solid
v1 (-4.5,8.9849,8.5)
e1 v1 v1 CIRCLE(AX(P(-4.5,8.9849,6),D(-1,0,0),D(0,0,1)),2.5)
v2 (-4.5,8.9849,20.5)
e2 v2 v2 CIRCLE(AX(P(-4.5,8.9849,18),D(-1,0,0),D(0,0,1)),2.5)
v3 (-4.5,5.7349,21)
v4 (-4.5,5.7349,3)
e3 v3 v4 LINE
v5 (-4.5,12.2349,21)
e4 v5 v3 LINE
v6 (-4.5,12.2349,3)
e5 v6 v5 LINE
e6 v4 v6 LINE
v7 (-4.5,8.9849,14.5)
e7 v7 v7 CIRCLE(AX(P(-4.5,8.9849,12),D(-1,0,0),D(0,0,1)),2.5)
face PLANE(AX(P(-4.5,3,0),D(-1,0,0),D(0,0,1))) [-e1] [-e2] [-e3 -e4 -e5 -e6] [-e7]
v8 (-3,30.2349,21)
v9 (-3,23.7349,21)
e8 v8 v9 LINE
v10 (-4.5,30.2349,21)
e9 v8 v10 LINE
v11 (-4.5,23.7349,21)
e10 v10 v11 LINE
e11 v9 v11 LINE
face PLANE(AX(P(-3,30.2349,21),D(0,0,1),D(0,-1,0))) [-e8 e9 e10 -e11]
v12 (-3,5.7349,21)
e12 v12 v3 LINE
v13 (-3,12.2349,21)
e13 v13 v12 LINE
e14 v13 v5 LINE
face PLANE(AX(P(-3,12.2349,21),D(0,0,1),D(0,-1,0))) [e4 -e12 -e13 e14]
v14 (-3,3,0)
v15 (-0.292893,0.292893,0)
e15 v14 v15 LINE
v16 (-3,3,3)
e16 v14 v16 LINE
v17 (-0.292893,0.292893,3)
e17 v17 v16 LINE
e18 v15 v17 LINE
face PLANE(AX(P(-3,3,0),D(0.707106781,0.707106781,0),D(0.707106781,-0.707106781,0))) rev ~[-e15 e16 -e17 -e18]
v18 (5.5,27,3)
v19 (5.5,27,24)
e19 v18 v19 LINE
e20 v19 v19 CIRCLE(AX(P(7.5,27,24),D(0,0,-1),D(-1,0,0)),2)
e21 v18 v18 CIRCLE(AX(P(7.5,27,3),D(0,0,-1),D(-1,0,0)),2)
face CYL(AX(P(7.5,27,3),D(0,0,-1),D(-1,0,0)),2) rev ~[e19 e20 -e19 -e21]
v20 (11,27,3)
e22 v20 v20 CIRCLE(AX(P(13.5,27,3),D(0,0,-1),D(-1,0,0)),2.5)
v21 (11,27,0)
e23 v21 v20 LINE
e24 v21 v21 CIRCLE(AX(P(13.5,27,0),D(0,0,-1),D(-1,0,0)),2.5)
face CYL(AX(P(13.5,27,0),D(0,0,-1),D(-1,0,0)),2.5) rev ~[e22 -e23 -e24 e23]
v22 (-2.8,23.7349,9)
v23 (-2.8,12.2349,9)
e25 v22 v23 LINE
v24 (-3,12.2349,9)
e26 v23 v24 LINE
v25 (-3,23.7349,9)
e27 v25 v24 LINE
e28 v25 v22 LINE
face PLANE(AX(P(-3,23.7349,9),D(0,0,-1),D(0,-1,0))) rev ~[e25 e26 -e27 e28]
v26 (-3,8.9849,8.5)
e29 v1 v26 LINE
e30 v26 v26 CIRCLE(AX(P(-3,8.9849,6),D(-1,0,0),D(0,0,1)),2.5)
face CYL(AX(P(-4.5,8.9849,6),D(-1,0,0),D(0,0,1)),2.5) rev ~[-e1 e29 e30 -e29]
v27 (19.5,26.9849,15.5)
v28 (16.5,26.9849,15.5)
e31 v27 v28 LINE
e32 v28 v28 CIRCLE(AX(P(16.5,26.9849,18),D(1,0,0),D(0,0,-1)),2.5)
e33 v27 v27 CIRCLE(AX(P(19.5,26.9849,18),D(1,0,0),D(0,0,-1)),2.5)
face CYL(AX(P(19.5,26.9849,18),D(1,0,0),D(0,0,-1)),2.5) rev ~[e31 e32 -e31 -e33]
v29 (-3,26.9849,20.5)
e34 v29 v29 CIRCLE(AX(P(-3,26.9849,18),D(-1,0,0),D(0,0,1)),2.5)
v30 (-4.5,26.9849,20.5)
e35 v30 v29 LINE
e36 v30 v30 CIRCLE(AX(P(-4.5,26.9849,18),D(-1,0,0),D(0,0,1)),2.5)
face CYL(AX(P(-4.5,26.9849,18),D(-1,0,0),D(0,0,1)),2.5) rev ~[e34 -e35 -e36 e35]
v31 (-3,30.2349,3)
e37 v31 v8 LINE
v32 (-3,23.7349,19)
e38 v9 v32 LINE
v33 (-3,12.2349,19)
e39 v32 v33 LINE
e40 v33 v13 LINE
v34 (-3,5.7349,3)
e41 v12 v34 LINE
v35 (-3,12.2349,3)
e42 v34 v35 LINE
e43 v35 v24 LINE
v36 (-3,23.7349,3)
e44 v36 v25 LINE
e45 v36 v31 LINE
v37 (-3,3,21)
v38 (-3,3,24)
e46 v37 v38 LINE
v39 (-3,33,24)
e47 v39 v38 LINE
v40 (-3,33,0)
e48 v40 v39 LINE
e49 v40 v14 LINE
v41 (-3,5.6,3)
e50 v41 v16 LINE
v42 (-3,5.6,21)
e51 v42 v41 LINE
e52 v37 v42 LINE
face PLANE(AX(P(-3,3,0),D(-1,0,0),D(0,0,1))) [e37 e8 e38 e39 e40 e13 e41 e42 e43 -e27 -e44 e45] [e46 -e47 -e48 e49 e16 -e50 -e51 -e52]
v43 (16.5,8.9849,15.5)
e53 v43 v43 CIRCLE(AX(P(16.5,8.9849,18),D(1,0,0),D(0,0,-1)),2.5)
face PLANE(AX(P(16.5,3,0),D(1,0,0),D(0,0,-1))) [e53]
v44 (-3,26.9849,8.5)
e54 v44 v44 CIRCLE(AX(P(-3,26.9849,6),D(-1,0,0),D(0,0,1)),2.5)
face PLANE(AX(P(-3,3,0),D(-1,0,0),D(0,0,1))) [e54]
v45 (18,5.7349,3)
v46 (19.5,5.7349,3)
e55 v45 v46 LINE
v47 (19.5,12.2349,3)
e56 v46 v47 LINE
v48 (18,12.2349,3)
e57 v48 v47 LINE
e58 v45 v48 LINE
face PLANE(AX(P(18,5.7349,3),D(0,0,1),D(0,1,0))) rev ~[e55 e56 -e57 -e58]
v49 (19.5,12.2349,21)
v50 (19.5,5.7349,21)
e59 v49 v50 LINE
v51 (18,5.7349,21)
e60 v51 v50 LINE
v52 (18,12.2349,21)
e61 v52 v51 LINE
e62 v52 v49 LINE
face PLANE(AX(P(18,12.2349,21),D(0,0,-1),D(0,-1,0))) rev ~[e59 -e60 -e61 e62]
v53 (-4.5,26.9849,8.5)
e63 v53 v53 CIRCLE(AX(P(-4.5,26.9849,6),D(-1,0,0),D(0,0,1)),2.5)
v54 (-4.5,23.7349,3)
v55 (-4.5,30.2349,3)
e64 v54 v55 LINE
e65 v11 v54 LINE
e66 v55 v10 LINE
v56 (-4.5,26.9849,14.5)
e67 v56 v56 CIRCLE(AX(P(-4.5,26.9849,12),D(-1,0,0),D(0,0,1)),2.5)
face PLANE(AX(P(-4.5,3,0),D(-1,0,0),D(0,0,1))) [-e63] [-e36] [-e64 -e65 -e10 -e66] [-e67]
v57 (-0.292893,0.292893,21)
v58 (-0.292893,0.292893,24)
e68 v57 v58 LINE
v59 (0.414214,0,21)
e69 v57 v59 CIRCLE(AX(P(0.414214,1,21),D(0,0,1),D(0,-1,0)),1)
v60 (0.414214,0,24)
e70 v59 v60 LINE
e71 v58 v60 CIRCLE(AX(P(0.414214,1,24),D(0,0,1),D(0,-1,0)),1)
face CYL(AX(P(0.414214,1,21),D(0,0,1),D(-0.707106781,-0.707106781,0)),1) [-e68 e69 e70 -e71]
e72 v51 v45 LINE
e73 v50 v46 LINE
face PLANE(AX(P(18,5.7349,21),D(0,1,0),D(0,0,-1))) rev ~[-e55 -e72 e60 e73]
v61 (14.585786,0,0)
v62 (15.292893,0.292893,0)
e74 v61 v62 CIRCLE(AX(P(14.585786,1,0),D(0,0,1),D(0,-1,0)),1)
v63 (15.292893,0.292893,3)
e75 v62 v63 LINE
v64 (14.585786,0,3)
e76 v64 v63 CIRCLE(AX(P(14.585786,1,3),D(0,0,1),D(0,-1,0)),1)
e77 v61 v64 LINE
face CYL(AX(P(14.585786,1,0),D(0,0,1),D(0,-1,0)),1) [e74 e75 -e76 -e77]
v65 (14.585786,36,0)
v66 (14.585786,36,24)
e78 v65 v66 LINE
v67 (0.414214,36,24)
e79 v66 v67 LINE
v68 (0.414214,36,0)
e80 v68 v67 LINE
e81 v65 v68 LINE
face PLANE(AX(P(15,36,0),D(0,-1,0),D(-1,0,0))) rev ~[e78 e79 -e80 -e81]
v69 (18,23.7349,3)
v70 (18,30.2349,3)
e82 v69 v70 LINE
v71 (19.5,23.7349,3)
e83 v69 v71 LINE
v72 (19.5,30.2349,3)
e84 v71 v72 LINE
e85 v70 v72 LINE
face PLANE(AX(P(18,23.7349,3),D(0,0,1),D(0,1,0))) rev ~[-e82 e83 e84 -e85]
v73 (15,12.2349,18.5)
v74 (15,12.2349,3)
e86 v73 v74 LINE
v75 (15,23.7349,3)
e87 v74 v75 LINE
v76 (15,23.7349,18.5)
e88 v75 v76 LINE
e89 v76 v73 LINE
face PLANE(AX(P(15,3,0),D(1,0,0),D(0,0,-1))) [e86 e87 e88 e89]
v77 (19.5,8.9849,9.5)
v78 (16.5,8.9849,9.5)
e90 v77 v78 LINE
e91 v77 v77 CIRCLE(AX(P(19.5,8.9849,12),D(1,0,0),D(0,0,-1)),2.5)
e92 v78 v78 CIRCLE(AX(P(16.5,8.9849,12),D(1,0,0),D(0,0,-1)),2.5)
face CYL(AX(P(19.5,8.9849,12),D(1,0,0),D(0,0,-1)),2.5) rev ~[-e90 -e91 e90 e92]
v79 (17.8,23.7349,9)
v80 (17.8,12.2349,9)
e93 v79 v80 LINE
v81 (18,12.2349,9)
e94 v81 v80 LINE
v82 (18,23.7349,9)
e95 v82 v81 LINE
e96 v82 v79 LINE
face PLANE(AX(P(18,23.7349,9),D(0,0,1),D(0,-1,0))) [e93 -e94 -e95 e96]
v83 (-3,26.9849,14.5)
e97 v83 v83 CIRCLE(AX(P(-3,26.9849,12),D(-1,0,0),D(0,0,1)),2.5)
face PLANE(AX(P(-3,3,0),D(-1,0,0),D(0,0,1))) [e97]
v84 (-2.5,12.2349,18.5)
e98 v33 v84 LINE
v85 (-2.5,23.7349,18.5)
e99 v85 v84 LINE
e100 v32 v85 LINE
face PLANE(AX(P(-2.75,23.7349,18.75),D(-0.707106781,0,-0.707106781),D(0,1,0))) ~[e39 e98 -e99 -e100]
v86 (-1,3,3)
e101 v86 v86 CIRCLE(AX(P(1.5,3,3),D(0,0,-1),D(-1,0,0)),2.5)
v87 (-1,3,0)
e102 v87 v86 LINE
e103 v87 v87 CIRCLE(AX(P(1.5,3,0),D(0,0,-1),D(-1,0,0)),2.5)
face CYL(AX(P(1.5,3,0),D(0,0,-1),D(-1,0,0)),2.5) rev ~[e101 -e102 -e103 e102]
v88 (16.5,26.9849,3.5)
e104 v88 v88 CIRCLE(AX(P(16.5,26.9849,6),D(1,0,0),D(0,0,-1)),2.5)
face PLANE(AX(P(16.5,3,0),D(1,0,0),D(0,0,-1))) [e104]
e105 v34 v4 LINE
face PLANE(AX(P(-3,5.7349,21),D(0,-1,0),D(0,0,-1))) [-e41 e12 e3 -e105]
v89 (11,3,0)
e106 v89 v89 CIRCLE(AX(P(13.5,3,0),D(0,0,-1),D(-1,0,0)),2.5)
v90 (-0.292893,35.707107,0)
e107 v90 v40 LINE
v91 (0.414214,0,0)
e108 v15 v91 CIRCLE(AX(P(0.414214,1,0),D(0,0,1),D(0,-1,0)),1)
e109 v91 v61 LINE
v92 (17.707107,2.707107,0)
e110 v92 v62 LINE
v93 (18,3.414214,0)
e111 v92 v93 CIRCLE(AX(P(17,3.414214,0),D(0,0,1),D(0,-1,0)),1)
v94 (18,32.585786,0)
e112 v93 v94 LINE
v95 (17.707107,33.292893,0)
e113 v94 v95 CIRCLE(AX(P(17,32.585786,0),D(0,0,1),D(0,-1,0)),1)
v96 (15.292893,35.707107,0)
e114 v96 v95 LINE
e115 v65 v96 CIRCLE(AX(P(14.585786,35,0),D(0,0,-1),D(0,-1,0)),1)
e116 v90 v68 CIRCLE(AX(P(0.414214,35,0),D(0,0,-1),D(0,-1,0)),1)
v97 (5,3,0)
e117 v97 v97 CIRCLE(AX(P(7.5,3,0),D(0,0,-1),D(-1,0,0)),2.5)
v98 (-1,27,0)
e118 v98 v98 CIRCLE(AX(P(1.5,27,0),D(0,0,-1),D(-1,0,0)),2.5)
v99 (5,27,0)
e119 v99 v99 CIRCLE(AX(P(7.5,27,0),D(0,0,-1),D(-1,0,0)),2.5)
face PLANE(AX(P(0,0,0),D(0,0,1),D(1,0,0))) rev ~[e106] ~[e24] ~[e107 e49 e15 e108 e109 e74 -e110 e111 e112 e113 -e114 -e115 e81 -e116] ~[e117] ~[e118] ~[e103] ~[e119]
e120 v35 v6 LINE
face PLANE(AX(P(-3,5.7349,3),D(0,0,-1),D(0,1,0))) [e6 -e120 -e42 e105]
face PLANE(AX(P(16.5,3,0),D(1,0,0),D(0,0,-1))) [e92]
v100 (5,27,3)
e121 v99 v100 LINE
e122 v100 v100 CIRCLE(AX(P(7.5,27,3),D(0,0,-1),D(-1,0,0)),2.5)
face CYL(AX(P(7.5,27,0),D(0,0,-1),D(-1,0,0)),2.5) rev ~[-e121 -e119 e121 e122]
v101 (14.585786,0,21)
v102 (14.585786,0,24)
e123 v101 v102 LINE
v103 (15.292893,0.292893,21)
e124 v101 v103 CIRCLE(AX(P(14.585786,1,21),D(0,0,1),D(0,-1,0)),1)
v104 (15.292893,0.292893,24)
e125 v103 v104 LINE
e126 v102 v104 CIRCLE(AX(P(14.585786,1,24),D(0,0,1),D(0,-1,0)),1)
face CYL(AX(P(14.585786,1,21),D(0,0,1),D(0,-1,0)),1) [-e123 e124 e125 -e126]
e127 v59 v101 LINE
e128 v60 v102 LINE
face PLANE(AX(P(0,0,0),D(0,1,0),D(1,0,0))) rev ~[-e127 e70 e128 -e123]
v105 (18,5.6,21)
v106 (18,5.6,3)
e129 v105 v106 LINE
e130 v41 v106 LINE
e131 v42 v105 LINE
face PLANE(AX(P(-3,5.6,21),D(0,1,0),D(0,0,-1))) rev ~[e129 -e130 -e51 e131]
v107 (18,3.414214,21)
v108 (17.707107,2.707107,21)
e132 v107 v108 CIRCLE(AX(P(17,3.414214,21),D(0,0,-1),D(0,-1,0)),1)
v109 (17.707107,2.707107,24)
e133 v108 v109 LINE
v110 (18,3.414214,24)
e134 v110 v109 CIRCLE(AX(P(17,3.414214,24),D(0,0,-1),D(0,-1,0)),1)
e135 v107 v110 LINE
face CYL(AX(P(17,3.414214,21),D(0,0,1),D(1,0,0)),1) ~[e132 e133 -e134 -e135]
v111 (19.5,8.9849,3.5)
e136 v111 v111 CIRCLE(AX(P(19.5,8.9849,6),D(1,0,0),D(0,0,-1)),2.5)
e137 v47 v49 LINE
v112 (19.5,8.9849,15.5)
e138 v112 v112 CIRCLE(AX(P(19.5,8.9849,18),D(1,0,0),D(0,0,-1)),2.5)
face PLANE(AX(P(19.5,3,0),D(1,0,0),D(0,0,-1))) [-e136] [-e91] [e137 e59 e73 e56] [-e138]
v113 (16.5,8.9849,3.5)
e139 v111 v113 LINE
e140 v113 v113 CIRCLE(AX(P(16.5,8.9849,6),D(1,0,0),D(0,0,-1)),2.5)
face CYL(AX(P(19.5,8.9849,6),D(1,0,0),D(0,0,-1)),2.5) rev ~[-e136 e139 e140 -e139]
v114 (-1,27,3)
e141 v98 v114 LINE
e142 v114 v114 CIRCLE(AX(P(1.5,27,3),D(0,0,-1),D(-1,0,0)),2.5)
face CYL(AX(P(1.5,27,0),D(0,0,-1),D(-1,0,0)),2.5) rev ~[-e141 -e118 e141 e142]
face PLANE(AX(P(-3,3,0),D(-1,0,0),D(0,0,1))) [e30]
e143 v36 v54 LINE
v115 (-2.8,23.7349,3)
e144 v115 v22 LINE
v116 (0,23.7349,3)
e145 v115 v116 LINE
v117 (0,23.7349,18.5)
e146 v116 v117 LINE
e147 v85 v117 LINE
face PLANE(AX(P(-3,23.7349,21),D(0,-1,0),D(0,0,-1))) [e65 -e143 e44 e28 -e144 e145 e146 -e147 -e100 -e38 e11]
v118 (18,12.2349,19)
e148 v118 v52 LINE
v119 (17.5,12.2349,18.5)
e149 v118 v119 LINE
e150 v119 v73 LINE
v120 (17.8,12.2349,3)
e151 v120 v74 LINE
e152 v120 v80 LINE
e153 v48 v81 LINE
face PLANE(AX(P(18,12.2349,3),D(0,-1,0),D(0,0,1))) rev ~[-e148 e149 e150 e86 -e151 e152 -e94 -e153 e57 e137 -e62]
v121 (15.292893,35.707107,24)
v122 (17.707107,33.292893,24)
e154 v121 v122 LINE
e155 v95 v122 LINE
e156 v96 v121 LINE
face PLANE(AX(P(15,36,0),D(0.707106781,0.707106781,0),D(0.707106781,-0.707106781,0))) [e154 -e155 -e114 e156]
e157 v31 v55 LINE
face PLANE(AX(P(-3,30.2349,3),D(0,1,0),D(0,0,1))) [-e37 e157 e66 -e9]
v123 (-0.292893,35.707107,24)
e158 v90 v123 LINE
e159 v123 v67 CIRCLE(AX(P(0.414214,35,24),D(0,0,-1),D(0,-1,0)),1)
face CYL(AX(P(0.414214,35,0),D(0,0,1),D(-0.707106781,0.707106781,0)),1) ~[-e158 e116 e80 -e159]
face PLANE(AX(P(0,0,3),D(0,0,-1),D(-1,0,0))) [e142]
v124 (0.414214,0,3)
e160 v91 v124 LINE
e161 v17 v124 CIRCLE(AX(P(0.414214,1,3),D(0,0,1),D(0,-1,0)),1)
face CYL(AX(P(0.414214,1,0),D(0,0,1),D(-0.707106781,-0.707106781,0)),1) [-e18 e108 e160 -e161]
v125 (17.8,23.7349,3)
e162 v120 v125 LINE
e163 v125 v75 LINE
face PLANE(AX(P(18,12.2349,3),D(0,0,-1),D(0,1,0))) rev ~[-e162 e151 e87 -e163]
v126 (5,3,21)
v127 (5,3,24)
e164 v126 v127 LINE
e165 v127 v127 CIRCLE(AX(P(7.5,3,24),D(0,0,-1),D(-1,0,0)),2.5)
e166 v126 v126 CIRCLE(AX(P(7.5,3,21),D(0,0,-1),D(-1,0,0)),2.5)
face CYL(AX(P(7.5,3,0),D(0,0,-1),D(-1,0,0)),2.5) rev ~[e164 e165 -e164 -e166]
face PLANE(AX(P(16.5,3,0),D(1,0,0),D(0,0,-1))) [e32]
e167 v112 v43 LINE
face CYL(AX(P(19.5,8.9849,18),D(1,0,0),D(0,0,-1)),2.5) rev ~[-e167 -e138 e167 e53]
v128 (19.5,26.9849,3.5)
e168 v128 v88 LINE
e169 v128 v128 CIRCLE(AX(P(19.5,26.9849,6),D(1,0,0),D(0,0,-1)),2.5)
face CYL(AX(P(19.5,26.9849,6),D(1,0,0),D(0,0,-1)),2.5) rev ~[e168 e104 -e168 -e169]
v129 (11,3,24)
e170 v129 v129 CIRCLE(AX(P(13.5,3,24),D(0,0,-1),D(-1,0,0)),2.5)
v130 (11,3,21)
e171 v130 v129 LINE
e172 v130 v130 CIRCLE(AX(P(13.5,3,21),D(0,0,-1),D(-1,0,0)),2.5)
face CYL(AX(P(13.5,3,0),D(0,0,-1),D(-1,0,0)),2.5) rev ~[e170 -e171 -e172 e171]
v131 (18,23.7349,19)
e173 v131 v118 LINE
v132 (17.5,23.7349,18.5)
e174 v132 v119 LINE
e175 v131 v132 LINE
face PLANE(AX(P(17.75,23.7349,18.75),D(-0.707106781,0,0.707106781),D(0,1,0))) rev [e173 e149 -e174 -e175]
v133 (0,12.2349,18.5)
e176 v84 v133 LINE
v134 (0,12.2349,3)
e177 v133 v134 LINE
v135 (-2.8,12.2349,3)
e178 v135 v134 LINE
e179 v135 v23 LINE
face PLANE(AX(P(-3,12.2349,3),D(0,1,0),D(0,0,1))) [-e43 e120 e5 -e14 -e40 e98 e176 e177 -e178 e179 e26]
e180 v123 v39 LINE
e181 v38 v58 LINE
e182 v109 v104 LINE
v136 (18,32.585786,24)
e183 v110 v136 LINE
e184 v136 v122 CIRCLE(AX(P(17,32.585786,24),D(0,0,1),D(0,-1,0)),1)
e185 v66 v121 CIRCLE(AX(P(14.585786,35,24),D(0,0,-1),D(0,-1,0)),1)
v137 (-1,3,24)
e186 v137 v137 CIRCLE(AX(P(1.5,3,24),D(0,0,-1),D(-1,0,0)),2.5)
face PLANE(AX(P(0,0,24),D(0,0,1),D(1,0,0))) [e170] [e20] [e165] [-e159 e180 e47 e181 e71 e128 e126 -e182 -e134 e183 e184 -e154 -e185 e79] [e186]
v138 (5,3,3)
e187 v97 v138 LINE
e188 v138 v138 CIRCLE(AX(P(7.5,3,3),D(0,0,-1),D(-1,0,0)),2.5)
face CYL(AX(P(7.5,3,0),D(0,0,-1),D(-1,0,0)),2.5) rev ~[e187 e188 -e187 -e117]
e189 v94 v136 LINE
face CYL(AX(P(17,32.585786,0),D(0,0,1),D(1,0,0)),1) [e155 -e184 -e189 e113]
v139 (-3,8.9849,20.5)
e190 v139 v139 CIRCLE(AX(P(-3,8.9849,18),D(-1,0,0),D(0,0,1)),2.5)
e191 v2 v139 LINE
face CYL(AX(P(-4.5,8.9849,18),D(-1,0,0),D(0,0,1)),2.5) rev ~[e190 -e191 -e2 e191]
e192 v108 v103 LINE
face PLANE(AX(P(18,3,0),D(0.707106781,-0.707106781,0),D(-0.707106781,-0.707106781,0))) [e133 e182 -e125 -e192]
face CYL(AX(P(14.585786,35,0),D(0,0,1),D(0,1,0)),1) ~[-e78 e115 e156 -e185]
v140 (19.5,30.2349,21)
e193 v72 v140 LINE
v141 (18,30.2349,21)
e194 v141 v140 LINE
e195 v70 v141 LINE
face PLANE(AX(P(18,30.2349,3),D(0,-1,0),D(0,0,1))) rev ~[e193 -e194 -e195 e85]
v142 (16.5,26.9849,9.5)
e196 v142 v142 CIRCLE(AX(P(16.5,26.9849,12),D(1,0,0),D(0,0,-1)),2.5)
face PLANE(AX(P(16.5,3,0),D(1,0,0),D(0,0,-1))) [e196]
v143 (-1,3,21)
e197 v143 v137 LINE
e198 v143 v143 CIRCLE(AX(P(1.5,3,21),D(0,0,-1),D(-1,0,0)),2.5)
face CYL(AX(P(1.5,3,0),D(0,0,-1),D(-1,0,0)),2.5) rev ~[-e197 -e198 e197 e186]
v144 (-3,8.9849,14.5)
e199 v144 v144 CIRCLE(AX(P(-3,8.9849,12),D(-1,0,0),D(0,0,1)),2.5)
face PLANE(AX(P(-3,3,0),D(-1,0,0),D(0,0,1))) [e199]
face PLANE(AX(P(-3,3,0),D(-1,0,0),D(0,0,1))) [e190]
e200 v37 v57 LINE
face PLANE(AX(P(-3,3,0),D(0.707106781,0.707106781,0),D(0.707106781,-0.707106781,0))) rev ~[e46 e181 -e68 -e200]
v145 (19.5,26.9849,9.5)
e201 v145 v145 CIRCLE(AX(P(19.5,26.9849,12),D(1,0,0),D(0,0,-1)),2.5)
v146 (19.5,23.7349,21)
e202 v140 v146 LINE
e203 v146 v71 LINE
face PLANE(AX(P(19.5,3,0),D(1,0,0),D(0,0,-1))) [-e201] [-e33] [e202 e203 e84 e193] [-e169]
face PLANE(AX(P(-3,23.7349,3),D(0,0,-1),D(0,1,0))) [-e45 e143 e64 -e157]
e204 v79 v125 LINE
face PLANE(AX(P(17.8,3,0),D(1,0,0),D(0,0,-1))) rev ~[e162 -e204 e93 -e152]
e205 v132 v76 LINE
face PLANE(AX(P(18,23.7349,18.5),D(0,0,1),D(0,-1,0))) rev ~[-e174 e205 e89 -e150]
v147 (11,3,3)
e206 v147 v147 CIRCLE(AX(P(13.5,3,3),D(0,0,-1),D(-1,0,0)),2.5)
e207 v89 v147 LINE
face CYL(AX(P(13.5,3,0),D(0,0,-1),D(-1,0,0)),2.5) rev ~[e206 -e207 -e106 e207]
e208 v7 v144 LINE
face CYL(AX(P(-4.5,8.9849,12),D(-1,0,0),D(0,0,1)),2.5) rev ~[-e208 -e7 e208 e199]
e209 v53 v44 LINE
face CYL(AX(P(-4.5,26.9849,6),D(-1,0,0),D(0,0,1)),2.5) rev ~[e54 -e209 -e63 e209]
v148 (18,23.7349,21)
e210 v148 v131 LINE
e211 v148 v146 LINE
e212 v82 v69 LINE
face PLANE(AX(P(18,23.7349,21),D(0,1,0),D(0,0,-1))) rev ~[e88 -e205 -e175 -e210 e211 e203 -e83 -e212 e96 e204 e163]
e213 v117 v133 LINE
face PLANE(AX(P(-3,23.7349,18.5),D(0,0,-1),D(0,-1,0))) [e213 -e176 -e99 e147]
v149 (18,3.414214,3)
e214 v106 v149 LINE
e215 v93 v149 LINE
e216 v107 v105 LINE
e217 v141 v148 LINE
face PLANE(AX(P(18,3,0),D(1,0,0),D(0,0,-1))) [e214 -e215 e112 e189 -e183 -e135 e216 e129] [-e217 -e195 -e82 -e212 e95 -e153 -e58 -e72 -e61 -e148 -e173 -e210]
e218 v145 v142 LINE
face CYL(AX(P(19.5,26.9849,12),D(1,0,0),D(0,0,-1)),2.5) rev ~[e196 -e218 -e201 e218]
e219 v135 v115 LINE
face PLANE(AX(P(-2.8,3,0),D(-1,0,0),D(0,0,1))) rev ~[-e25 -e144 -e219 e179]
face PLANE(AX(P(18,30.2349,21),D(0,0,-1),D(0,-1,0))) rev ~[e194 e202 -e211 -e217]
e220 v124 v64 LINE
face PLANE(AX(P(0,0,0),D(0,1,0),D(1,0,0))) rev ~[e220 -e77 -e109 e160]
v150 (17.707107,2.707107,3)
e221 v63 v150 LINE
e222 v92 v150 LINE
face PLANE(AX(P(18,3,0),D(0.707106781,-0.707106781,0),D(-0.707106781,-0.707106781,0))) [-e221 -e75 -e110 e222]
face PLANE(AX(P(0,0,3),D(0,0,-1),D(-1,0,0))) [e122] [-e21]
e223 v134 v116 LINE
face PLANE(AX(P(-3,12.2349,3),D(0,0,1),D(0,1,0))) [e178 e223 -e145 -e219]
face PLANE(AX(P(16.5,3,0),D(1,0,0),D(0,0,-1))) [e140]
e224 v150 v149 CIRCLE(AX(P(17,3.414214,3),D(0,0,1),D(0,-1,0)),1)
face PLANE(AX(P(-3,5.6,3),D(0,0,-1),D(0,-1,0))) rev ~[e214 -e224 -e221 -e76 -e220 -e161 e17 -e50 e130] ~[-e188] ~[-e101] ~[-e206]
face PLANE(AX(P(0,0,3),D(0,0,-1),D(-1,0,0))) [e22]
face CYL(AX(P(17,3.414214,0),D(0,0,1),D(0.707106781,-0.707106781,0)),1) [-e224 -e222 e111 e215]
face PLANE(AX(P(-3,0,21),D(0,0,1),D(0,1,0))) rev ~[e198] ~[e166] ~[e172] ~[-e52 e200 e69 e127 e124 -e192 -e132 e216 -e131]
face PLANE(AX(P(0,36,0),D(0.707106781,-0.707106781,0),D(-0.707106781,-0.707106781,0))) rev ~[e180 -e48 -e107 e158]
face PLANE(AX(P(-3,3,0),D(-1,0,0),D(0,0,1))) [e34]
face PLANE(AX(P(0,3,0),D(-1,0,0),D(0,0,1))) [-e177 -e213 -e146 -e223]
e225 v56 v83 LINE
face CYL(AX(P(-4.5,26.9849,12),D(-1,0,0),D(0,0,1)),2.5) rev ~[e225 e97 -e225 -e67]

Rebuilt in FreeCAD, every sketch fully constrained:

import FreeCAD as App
import Part
import Sketcher

V = App.Vector


def edges_at(feature, points):
    """Names of the edges that pass closest to the given points."""
    edges = feature.Shape.Edges
    near = lambda p: min(range(len(edges)), key=lambda i: edges[i].distToShape(Part.Vertex(*p))[0])
    return sorted({f"Edge{near(p) + 1}" for p in points})

doc = App.newDocument("Part")
body = doc.addObject("PartDesign::Body", "Body")

sketch1 = body.newObject("Sketcher::SketchObject", "Sketch")
sketch1.AttachmentSupport = (doc.getObject("XY_Plane"), [""])
sketch1.MapMode = "FlatFace"
sketch1.addGeometry([
    Part.LineSegment(V(-3, 3, 0), V(0, 0, 0)),
    Part.LineSegment(V(0, 0, 0), V(15, 0, 0)),
    Part.LineSegment(V(15, 0, 0), V(18, 3, 0)),
    Part.LineSegment(V(18, 3, 0), V(18, 33, 0)),
    Part.LineSegment(V(18, 33, 0), V(15, 36, 0)),
    Part.LineSegment(V(15, 36, 0), V(0, 36, 0)),
    Part.LineSegment(V(0, 36, 0), V(-3, 33, 0)),
    Part.LineSegment(V(-3, 33, 0), V(-3, 3, 0)),
], False)
sketch1.addConstraint([
    Sketcher.Constraint("Coincident", 0, 2, 1, 1),
    Sketcher.Constraint("Coincident", 1, 2, 2, 1),
    Sketcher.Constraint("Coincident", 2, 2, 3, 1),
    Sketcher.Constraint("Coincident", 3, 2, 4, 1),
    Sketcher.Constraint("Coincident", 4, 2, 5, 1),
    Sketcher.Constraint("Coincident", 5, 2, 6, 1),
    Sketcher.Constraint("Coincident", 6, 2, 7, 1),
    Sketcher.Constraint("Coincident", 7, 2, 0, 1),
    Sketcher.Constraint("Horizontal", 1),
    Sketcher.Constraint("Vertical", 3),
    Sketcher.Constraint("Horizontal", 5),
    Sketcher.Constraint("Vertical", 7),
    Sketcher.Constraint("Coincident", 0, 2, -1, 1),
    Sketcher.Constraint("PointOnObject", 5, 2, -2),
    Sketcher.Constraint("Perpendicular", 0, 2),
    Sketcher.Constraint("Perpendicular", 2, 4),
    Sketcher.Constraint("Perpendicular", 4, 6),
    Sketcher.Constraint("Horizontal", 3, 2, 6, 2),
    Sketcher.Constraint("Horizontal", 2, 2, 7, 2),
    Sketcher.Constraint("Vertical", 1, 2, 4, 2),
    Sketcher.Constraint("DistanceX", 1, 1, 1, 2, 15.0),
    Sketcher.Constraint("DistanceY", -1, 1, 4, 2, 36.0),
    Sketcher.Constraint("DistanceX", 6, 2, 3, 2, 21.0),
])
pad1 = body.newObject("PartDesign::Pad", "Pad")
pad1.Profile = sketch1
pad1.Length = 24

sketch2 = body.newObject("Sketcher::SketchObject", "Sketch001")
sketch2.AttachmentSupport = (doc.getObject("YZ_Plane"), [""])
sketch2.MapMode = "FlatFace"
sketch2.AttachmentOffset = App.Placement(V(0, 0, -3), App.Rotation())
sketch2.addGeometry([
    Part.LineSegment(V(5.6, 3, 0), V(0, 3, 0)),
    Part.LineSegment(V(0, 3, 0), V(0, 21, 0)),
    Part.LineSegment(V(0, 21, 0), V(5.6, 21, 0)),
    Part.LineSegment(V(5.6, 21, 0), V(5.6, 3, 0)),
], False)
sketch2.addConstraint([
    Sketcher.Constraint("Coincident", 0, 2, 1, 1),
    Sketcher.Constraint("Coincident", 1, 2, 2, 1),
    Sketcher.Constraint("Coincident", 2, 2, 3, 1),
    Sketcher.Constraint("Coincident", 3, 2, 0, 1),
    Sketcher.Constraint("Horizontal", 0),
    Sketcher.Constraint("Vertical", 1),
    Sketcher.Constraint("Horizontal", 2),
    Sketcher.Constraint("Vertical", 3),
    Sketcher.Constraint("PointOnObject", 0, 2, -2),
    Sketcher.Constraint("DistanceX", 0, 2, 0, 1, 5.6),
    Sketcher.Constraint("DistanceY", -1, 1, 0, 2, 3.0),
    Sketcher.Constraint("DistanceY", 1, 1, 1, 2, 18.0),
])
pocket1 = body.newObject("PartDesign::Pocket", "Pocket")
pocket1.Profile = sketch2
pocket1.Type = "ThroughAll"
pocket1.Reversed = True

sketch3 = body.newObject("Sketcher::SketchObject", "Sketch002")
sketch3.AttachmentSupport = (doc.getObject("XY_Plane"), [""])
sketch3.MapMode = "FlatFace"
sketch3.addGeometry([
    Part.Circle(V(7.5, 3, 0), V(0, 0, 1), 2.5),
    Part.Circle(V(1.5, 3, 0), V(0, 0, 1), 2.5),
    Part.Circle(V(13.5, 3, 0), V(0, 0, 1), 2.5),
], False)
sketch3.addConstraint([
    Sketcher.Constraint("Equal", 0, 1),
    Sketcher.Constraint("Equal", 1, 2),
    Sketcher.Constraint("Horizontal", 0, 3, 1, 3),
    Sketcher.Constraint("Horizontal", 1, 3, 2, 3),
    Sketcher.Constraint("Diameter", 0, 5.0),
    Sketcher.Constraint("DistanceX", 1, 3, 0, 3, 6.0),
    Sketcher.Constraint("DistanceX", 0, 3, 2, 3, 6.0),
    Sketcher.Constraint("DistanceY", -1, 1, 0, 3, 3.0),
    Sketcher.Constraint("DistanceX", -1, 1, 0, 3, 7.5),
])
pocket2 = body.newObject("PartDesign::Pocket", "Pocket001")
pocket2.Profile = sketch3
pocket2.Type = "ThroughAll"
pocket2.Reversed = True

sketch4 = body.newObject("Sketcher::SketchObject", "Sketch003")
sketch4.AttachmentSupport = (doc.getObject("XY_Plane"), [""])
sketch4.MapMode = "FlatFace"
sketch4.addGeometry([
    Part.Circle(V(7.5, 27, 0), V(0, 0, 1), 2.5),
    Part.Circle(V(1.5, 27, 0), V(0, 0, 1), 2.5),
    Part.Circle(V(13.5, 27, 0), V(0, 0, 1), 2.5),
], False)
sketch4.addConstraint([
    Sketcher.Constraint("Equal", 0, 1),
    Sketcher.Constraint("Equal", 1, 2),
    Sketcher.Constraint("Horizontal", 0, 3, 1, 3),
    Sketcher.Constraint("Horizontal", 1, 3, 2, 3),
    Sketcher.Constraint("Diameter", 0, 5.0),
    Sketcher.Constraint("DistanceX", 1, 3, 0, 3, 6.0),
    Sketcher.Constraint("DistanceX", 0, 3, 2, 3, 6.0),
    Sketcher.Constraint("DistanceY", -1, 1, 0, 3, 27.0),
    Sketcher.Constraint("DistanceX", -1, 1, 0, 3, 7.5),
])
pocket3 = body.newObject("PartDesign::Pocket", "Pocket002")
pocket3.Profile = sketch4
pocket3.Length = 3
pocket3.Reversed = True

sketch5 = body.newObject("Sketcher::SketchObject", "Sketch004")
sketch5.AttachmentSupport = (doc.getObject("XY_Plane"), [""])
sketch5.MapMode = "FlatFace"
sketch5.AttachmentOffset = App.Placement(V(0, 0, 3), App.Rotation())
sketch5.addGeometry(Part.Circle(V(7.5, 27, 0), V(0, 0, 1), 2), False)
sketch5.addConstraint([
    Sketcher.Constraint("Diameter", 0, 4.0),
    Sketcher.Constraint("DistanceY", -1, 1, 0, 3, 27.0),
    Sketcher.Constraint("DistanceX", -1, 1, 0, 3, 7.5),
])
pocket4 = body.newObject("PartDesign::Pocket", "Pocket003")
pocket4.Profile = sketch5
pocket4.Type = "ThroughAll"
pocket4.Reversed = True

sketch6 = body.newObject("Sketcher::SketchObject", "Sketch005")
sketch6.AttachmentSupport = (doc.getObject("YZ_Plane"), [""])
sketch6.MapMode = "FlatFace"
sketch6.AttachmentOffset = App.Placement(V(0, 0, 18), App.Rotation())
sketch6.addGeometry([
    Part.LineSegment(V(30.2349, 21, 0), V(23.7349, 21, 0)),
    Part.LineSegment(V(23.7349, 21, 0), V(23.7349, 3, 0)),
    Part.LineSegment(V(23.7349, 3, 0), V(30.2349, 3, 0)),
    Part.LineSegment(V(30.2349, 3, 0), V(30.2349, 21, 0)),
    Part.LineSegment(V(12.2349, 21, 0), V(5.7349, 21, 0)),
    Part.LineSegment(V(5.7349, 21, 0), V(5.7349, 3, 0)),
    Part.LineSegment(V(5.7349, 3, 0), V(12.2349, 3, 0)),
    Part.LineSegment(V(12.2349, 3, 0), V(12.2349, 21, 0)),
], False)
sketch6.addConstraint([
    Sketcher.Constraint("Coincident", 0, 2, 1, 1),
    Sketcher.Constraint("Coincident", 1, 2, 2, 1),
    Sketcher.Constraint("Coincident", 2, 2, 3, 1),
    Sketcher.Constraint("Coincident", 3, 2, 0, 1),
    Sketcher.Constraint("Coincident", 4, 2, 5, 1),
    Sketcher.Constraint("Coincident", 5, 2, 6, 1),
    Sketcher.Constraint("Coincident", 6, 2, 7, 1),
    Sketcher.Constraint("Coincident", 7, 2, 4, 1),
    Sketcher.Constraint("Horizontal", 0),
    Sketcher.Constraint("Vertical", 1),
    Sketcher.Constraint("Horizontal", 2),
    Sketcher.Constraint("Vertical", 3),
    Sketcher.Constraint("Horizontal", 4),
    Sketcher.Constraint("Vertical", 5),
    Sketcher.Constraint("Horizontal", 6),
    Sketcher.Constraint("Vertical", 7),
    Sketcher.Constraint("Horizontal", 3, 2, 4, 2),
    Sketcher.Constraint("Horizontal", 2, 2, 5, 2),
    Sketcher.Constraint("Equal", 2, 4),
    Sketcher.Constraint("DistanceY", 1, 2, 1, 1, 18.0),
    Sketcher.Constraint("DistanceX", 0, 2, 0, 1, 6.5),
    Sketcher.Constraint("DistanceX", 4, 2, 0, 2, 18.0),
    Sketcher.Constraint("DistanceY", -1, 1, 0, 2, 21.0),
    Sketcher.Constraint("DistanceX", -1, 1, 0, 2, 23.735),
])
pad2 = body.newObject("PartDesign::Pad", "Pad001")
pad2.Profile = sketch6
pad2.Length = 1.5

sketch7 = body.newObject("Sketcher::SketchObject", "Sketch006")
sketch7.AttachmentSupport = (doc.getObject("YZ_Plane"), [""])
sketch7.MapMode = "FlatFace"
sketch7.AttachmentOffset = App.Placement(V(0, 0, 19.5), App.Rotation())
sketch7.addGeometry([
    Part.Circle(V(26.9849, 12, 0), V(0, 0, 1), 2.5),
    Part.Circle(V(26.9849, 6, 0), V(0, 0, 1), 2.5),
    Part.Circle(V(26.9849, 18, 0), V(0, 0, 1), 2.5),
    Part.Circle(V(8.9849, 12, 0), V(0, 0, 1), 2.5),
    Part.Circle(V(8.9849, 6, 0), V(0, 0, 1), 2.5),
    Part.Circle(V(8.9849, 18, 0), V(0, 0, 1), 2.5),
], False)
sketch7.addConstraint([
    Sketcher.Constraint("Equal", 0, 1),
    Sketcher.Constraint("Equal", 1, 2),
    Sketcher.Constraint("Equal", 2, 3),
    Sketcher.Constraint("Equal", 3, 4),
    Sketcher.Constraint("Equal", 4, 5),
    Sketcher.Constraint("Horizontal", 0, 3, 3, 3),
    Sketcher.Constraint("Horizontal", 1, 3, 4, 3),
    Sketcher.Constraint("Horizontal", 2, 3, 5, 3),
    Sketcher.Constraint("Vertical", 0, 3, 1, 3),
    Sketcher.Constraint("Vertical", 1, 3, 2, 3),
    Sketcher.Constraint("Vertical", 3, 3, 4, 3),
    Sketcher.Constraint("Vertical", 4, 3, 5, 3),
    Sketcher.Constraint("Diameter", 0, 5.0),
    Sketcher.Constraint("DistanceY", -1, 1, 1, 3, 6.0),
    Sketcher.Constraint("DistanceY", -1, 1, 2, 3, 18.0),
    Sketcher.Constraint("DistanceY", 1, 3, 0, 3, 6.0),
    Sketcher.Constraint("DistanceX", 3, 3, 0, 3, 18.0),
    Sketcher.Constraint("DistanceX", -1, 1, 0, 3, 26.985),
])
pocket5 = body.newObject("PartDesign::Pocket", "Pocket004")
pocket5.Profile = sketch7
pocket5.Length = 3

sketch8 = body.newObject("Sketcher::SketchObject", "Sketch007")
sketch8.AttachmentSupport = (doc.getObject("YZ_Plane"), [""])
sketch8.MapMode = "FlatFace"
sketch8.AttachmentOffset = App.Placement(V(0, 0, -3), App.Rotation())
sketch8.addGeometry([
    Part.LineSegment(V(30.2349, 21, 0), V(30.2349, 3, 0)),
    Part.LineSegment(V(30.2349, 3, 0), V(23.7349, 3, 0)),
    Part.LineSegment(V(23.7349, 3, 0), V(23.7349, 21, 0)),
    Part.LineSegment(V(23.7349, 21, 0), V(30.2349, 21, 0)),
    Part.LineSegment(V(5.7349, 21, 0), V(12.2349, 21, 0)),
    Part.LineSegment(V(12.2349, 21, 0), V(12.2349, 3, 0)),
    Part.LineSegment(V(12.2349, 3, 0), V(5.7349, 3, 0)),
    Part.LineSegment(V(5.7349, 3, 0), V(5.7349, 21, 0)),
], False)
sketch8.addConstraint([
    Sketcher.Constraint("Coincident", 0, 2, 1, 1),
    Sketcher.Constraint("Coincident", 1, 2, 2, 1),
    Sketcher.Constraint("Coincident", 2, 2, 3, 1),
    Sketcher.Constraint("Coincident", 3, 2, 0, 1),
    Sketcher.Constraint("Coincident", 4, 2, 5, 1),
    Sketcher.Constraint("Coincident", 5, 2, 6, 1),
    Sketcher.Constraint("Coincident", 6, 2, 7, 1),
    Sketcher.Constraint("Coincident", 7, 2, 4, 1),
    Sketcher.Constraint("Vertical", 0),
    Sketcher.Constraint("Horizontal", 1),
    Sketcher.Constraint("Vertical", 2),
    Sketcher.Constraint("Horizontal", 3),
    Sketcher.Constraint("Horizontal", 4),
    Sketcher.Constraint("Vertical", 5),
    Sketcher.Constraint("Horizontal", 6),
    Sketcher.Constraint("Vertical", 7),
    Sketcher.Constraint("Horizontal", 3, 2, 4, 2),
    Sketcher.Constraint("Horizontal", 1, 2, 5, 2),
    Sketcher.Constraint("Equal", 3, 4),
    Sketcher.Constraint("DistanceY", 0, 2, 0, 1, 18.0),
    Sketcher.Constraint("DistanceX", 1, 2, 1, 1, 6.5),
    Sketcher.Constraint("DistanceY", -1, 1, 0, 2, 3.0),
    Sketcher.Constraint("DistanceX", 4, 2, 3, 2, 18.0),
    Sketcher.Constraint("DistanceX", -1, 1, 0, 2, 30.235),
])
pad3 = body.newObject("PartDesign::Pad", "Pad002")
pad3.Profile = sketch8
pad3.Length = 1.5
pad3.Reversed = True

sketch9 = body.newObject("Sketcher::SketchObject", "Sketch008")
sketch9.AttachmentSupport = (doc.getObject("YZ_Plane"), [""])
sketch9.MapMode = "FlatFace"
sketch9.AttachmentOffset = App.Placement(V(0, 0, -4.5), App.Rotation())
sketch9.addGeometry([
    Part.Circle(V(26.9849, 6, 0), V(0, 0, 1), 2.5),
    Part.Circle(V(26.9849, 12, 0), V(0, 0, 1), 2.5),
    Part.Circle(V(26.9849, 18, 0), V(0, 0, 1), 2.5),
    Part.Circle(V(8.9849, 18, 0), V(0, 0, 1), 2.5),
    Part.Circle(V(8.9849, 12, 0), V(0, 0, 1), 2.5),
    Part.Circle(V(8.9849, 6, 0), V(0, 0, 1), 2.5),
], False)
sketch9.addConstraint([
    Sketcher.Constraint("Equal", 0, 1),
    Sketcher.Constraint("Equal", 1, 2),
    Sketcher.Constraint("Equal", 2, 3),
    Sketcher.Constraint("Equal", 3, 4),
    Sketcher.Constraint("Equal", 4, 5),
    Sketcher.Constraint("Horizontal", 2, 3, 3, 3),
    Sketcher.Constraint("Horizontal", 1, 3, 4, 3),
    Sketcher.Constraint("Horizontal", 0, 3, 5, 3),
    Sketcher.Constraint("Vertical", 0, 3, 1, 3),
    Sketcher.Constraint("Vertical", 1, 3, 2, 3),
    Sketcher.Constraint("Vertical", 3, 3, 4, 3),
    Sketcher.Constraint("Vertical", 4, 3, 5, 3),
    Sketcher.Constraint("Diameter", 0, 5.0),
    Sketcher.Constraint("DistanceY", -1, 1, 0, 3, 6.0),
    Sketcher.Constraint("DistanceY", -1, 1, 1, 3, 12.0),
    Sketcher.Constraint("DistanceY", -1, 1, 2, 3, 18.0),
    Sketcher.Constraint("DistanceX", 3, 3, 2, 3, 18.0),
    Sketcher.Constraint("DistanceX", -1, 1, 0, 3, 26.985),
])
pocket6 = body.newObject("PartDesign::Pocket", "Pocket005")
pocket6.Profile = sketch9
pocket6.Length = 1.5
pocket6.Reversed = True

sketch10 = body.newObject("Sketcher::SketchObject", "Sketch009")
sketch10.AttachmentSupport = (doc.getObject("YZ_Plane"), [""])
sketch10.MapMode = "FlatFace"
sketch10.AttachmentOffset = App.Placement(V(0, 0, 18), App.Rotation())
sketch10.addGeometry([
    Part.LineSegment(V(23.7349, 18.5, 0), V(12.2349, 18.5, 0)),
    Part.LineSegment(V(12.2349, 18.5, 0), V(12.2349, 3, 0)),
    Part.LineSegment(V(12.2349, 3, 0), V(23.7349, 3, 0)),
    Part.LineSegment(V(23.7349, 3, 0), V(23.7349, 18.5, 0)),
], False)
sketch10.addConstraint([
    Sketcher.Constraint("Coincident", 0, 2, 1, 1),
    Sketcher.Constraint("Coincident", 1, 2, 2, 1),
    Sketcher.Constraint("Coincident", 2, 2, 3, 1),
    Sketcher.Constraint("Coincident", 3, 2, 0, 1),
    Sketcher.Constraint("Horizontal", 0),
    Sketcher.Constraint("Vertical", 1),
    Sketcher.Constraint("Horizontal", 2),
    Sketcher.Constraint("Vertical", 3),
    Sketcher.Constraint("DistanceY", 1, 2, 1, 1, 15.5),
    Sketcher.Constraint("DistanceX", 0, 2, 0, 1, 11.5),
    Sketcher.Constraint("DistanceY", -1, 1, 1, 2, 3.0),
    Sketcher.Constraint("DistanceX", -1, 1, 0, 2, 12.235),
])
pocket7 = body.newObject("PartDesign::Pocket", "Pocket006")
pocket7.Profile = sketch10
pocket7.Length = 3

sketch11 = body.newObject("Sketcher::SketchObject", "Sketch010")
sketch11.AttachmentSupport = (doc.getObject("YZ_Plane"), [""])
sketch11.MapMode = "FlatFace"
sketch11.AttachmentOffset = App.Placement(V(0, 0, 18), App.Rotation())
sketch11.addGeometry([
    Part.LineSegment(V(23.7349, 3, 0), V(23.7349, 9, 0)),
    Part.LineSegment(V(23.7349, 9, 0), V(12.2349, 9, 0)),
    Part.LineSegment(V(12.2349, 9, 0), V(12.2349, 3, 0)),
    Part.LineSegment(V(12.2349, 3, 0), V(23.7349, 3, 0)),
], False)
sketch11.addConstraint([
    Sketcher.Constraint("Coincident", 0, 2, 1, 1),
    Sketcher.Constraint("Coincident", 1, 2, 2, 1),
    Sketcher.Constraint("Coincident", 2, 2, 3, 1),
    Sketcher.Constraint("Coincident", 3, 2, 0, 1),
    Sketcher.Constraint("Vertical", 0),
    Sketcher.Constraint("Horizontal", 1),
    Sketcher.Constraint("Vertical", 2),
    Sketcher.Constraint("Horizontal", 3),
    Sketcher.Constraint("DistanceY", 0, 1, 0, 2, 6.0),
    Sketcher.Constraint("DistanceX", 1, 2, 1, 1, 11.5),
    Sketcher.Constraint("DistanceY", -1, 1, 0, 2, 9.0),
    Sketcher.Constraint("DistanceX", -1, 1, 0, 2, 23.735),
])
pad4 = body.newObject("PartDesign::Pad", "Pad003")
pad4.Profile = sketch11
pad4.Length = 0.2
pad4.Reversed = True

sketch12 = body.newObject("Sketcher::SketchObject", "Sketch011")
sketch12.AttachmentSupport = (doc.getObject("YZ_Plane"), [""])
sketch12.MapMode = "FlatFace"
sketch12.AttachmentOffset = App.Placement(V(0, 0, -3), App.Rotation())
sketch12.addGeometry([
    Part.LineSegment(V(23.7349, 18.5, 0), V(23.7349, 3, 0)),
    Part.LineSegment(V(23.7349, 3, 0), V(12.2349, 3, 0)),
    Part.LineSegment(V(12.2349, 3, 0), V(12.2349, 18.5, 0)),
    Part.LineSegment(V(12.2349, 18.5, 0), V(23.7349, 18.5, 0)),
], False)
sketch12.addConstraint([
    Sketcher.Constraint("Coincident", 0, 2, 1, 1),
    Sketcher.Constraint("Coincident", 1, 2, 2, 1),
    Sketcher.Constraint("Coincident", 2, 2, 3, 1),
    Sketcher.Constraint("Coincident", 3, 2, 0, 1),
    Sketcher.Constraint("Vertical", 0),
    Sketcher.Constraint("Horizontal", 1),
    Sketcher.Constraint("Vertical", 2),
    Sketcher.Constraint("Horizontal", 3),
    Sketcher.Constraint("DistanceY", 0, 2, 0, 1, 15.5),
    Sketcher.Constraint("DistanceX", 1, 2, 1, 1, 11.5),
    Sketcher.Constraint("DistanceY", -1, 1, 0, 2, 3.0),
    Sketcher.Constraint("DistanceX", -1, 1, 0, 2, 23.735),
])
pocket8 = body.newObject("PartDesign::Pocket", "Pocket007")
pocket8.Profile = sketch12
pocket8.Length = 3
pocket8.Reversed = True

sketch13 = body.newObject("Sketcher::SketchObject", "Sketch012")
sketch13.AttachmentSupport = (doc.getObject("YZ_Plane"), [""])
sketch13.MapMode = "FlatFace"
sketch13.AttachmentOffset = App.Placement(V(0, 0, -3), App.Rotation())
sketch13.addGeometry([
    Part.LineSegment(V(23.7349, 9, 0), V(23.7349, 3, 0)),
    Part.LineSegment(V(23.7349, 3, 0), V(12.2197, 3, 0)),
    Part.LineSegment(V(12.2197, 3, 0), V(12.2197, 9, 0)),
    Part.LineSegment(V(12.2197, 9, 0), V(23.7349, 9, 0)),
], False)
sketch13.addConstraint([
    Sketcher.Constraint("Coincident", 0, 2, 1, 1),
    Sketcher.Constraint("Coincident", 1, 2, 2, 1),
    Sketcher.Constraint("Coincident", 2, 2, 3, 1),
    Sketcher.Constraint("Coincident", 3, 2, 0, 1),
    Sketcher.Constraint("Vertical", 0),
    Sketcher.Constraint("Horizontal", 1),
    Sketcher.Constraint("Vertical", 2),
    Sketcher.Constraint("Horizontal", 3),
    Sketcher.Constraint("DistanceY", 0, 2, 0, 1, 6.0),
    Sketcher.Constraint("DistanceY", -1, 1, 0, 2, 3.0),
    Sketcher.Constraint("DistanceX", 1, 2, 1, 1, 11.5152),
    Sketcher.Constraint("DistanceX", -1, 1, 0, 2, 23.735),
])
pad5 = body.newObject("PartDesign::Pad", "Pad004")
pad5.Profile = sketch13
pad5.Length = 0.2
doc.recompute()

fillet = body.newObject("PartDesign::Fillet", "Fillet")
fillet.Base = (pad5, edges_at(pad5, [
    (18, 33, 12),
    (15, 36, 12),
    (0, 36, 12),
    (0, 0, 1.5),
    (0, 0, 22.5),
    (15, 0, 1.5),
    (18, 3, 1.5),
    (15, 0, 22.5),
    (18, 3, 22.5),
]))
fillet.Radius = 1
doc.recompute()

chamfer = body.newObject("PartDesign::Chamfer", "Chamfer")
chamfer.Base = (fillet, edges_at(fillet, [(-3, 17.985, 18.5), (18, 17.985, 18.5)]))
chamfer.Size = 0.5

doc.recompute()
